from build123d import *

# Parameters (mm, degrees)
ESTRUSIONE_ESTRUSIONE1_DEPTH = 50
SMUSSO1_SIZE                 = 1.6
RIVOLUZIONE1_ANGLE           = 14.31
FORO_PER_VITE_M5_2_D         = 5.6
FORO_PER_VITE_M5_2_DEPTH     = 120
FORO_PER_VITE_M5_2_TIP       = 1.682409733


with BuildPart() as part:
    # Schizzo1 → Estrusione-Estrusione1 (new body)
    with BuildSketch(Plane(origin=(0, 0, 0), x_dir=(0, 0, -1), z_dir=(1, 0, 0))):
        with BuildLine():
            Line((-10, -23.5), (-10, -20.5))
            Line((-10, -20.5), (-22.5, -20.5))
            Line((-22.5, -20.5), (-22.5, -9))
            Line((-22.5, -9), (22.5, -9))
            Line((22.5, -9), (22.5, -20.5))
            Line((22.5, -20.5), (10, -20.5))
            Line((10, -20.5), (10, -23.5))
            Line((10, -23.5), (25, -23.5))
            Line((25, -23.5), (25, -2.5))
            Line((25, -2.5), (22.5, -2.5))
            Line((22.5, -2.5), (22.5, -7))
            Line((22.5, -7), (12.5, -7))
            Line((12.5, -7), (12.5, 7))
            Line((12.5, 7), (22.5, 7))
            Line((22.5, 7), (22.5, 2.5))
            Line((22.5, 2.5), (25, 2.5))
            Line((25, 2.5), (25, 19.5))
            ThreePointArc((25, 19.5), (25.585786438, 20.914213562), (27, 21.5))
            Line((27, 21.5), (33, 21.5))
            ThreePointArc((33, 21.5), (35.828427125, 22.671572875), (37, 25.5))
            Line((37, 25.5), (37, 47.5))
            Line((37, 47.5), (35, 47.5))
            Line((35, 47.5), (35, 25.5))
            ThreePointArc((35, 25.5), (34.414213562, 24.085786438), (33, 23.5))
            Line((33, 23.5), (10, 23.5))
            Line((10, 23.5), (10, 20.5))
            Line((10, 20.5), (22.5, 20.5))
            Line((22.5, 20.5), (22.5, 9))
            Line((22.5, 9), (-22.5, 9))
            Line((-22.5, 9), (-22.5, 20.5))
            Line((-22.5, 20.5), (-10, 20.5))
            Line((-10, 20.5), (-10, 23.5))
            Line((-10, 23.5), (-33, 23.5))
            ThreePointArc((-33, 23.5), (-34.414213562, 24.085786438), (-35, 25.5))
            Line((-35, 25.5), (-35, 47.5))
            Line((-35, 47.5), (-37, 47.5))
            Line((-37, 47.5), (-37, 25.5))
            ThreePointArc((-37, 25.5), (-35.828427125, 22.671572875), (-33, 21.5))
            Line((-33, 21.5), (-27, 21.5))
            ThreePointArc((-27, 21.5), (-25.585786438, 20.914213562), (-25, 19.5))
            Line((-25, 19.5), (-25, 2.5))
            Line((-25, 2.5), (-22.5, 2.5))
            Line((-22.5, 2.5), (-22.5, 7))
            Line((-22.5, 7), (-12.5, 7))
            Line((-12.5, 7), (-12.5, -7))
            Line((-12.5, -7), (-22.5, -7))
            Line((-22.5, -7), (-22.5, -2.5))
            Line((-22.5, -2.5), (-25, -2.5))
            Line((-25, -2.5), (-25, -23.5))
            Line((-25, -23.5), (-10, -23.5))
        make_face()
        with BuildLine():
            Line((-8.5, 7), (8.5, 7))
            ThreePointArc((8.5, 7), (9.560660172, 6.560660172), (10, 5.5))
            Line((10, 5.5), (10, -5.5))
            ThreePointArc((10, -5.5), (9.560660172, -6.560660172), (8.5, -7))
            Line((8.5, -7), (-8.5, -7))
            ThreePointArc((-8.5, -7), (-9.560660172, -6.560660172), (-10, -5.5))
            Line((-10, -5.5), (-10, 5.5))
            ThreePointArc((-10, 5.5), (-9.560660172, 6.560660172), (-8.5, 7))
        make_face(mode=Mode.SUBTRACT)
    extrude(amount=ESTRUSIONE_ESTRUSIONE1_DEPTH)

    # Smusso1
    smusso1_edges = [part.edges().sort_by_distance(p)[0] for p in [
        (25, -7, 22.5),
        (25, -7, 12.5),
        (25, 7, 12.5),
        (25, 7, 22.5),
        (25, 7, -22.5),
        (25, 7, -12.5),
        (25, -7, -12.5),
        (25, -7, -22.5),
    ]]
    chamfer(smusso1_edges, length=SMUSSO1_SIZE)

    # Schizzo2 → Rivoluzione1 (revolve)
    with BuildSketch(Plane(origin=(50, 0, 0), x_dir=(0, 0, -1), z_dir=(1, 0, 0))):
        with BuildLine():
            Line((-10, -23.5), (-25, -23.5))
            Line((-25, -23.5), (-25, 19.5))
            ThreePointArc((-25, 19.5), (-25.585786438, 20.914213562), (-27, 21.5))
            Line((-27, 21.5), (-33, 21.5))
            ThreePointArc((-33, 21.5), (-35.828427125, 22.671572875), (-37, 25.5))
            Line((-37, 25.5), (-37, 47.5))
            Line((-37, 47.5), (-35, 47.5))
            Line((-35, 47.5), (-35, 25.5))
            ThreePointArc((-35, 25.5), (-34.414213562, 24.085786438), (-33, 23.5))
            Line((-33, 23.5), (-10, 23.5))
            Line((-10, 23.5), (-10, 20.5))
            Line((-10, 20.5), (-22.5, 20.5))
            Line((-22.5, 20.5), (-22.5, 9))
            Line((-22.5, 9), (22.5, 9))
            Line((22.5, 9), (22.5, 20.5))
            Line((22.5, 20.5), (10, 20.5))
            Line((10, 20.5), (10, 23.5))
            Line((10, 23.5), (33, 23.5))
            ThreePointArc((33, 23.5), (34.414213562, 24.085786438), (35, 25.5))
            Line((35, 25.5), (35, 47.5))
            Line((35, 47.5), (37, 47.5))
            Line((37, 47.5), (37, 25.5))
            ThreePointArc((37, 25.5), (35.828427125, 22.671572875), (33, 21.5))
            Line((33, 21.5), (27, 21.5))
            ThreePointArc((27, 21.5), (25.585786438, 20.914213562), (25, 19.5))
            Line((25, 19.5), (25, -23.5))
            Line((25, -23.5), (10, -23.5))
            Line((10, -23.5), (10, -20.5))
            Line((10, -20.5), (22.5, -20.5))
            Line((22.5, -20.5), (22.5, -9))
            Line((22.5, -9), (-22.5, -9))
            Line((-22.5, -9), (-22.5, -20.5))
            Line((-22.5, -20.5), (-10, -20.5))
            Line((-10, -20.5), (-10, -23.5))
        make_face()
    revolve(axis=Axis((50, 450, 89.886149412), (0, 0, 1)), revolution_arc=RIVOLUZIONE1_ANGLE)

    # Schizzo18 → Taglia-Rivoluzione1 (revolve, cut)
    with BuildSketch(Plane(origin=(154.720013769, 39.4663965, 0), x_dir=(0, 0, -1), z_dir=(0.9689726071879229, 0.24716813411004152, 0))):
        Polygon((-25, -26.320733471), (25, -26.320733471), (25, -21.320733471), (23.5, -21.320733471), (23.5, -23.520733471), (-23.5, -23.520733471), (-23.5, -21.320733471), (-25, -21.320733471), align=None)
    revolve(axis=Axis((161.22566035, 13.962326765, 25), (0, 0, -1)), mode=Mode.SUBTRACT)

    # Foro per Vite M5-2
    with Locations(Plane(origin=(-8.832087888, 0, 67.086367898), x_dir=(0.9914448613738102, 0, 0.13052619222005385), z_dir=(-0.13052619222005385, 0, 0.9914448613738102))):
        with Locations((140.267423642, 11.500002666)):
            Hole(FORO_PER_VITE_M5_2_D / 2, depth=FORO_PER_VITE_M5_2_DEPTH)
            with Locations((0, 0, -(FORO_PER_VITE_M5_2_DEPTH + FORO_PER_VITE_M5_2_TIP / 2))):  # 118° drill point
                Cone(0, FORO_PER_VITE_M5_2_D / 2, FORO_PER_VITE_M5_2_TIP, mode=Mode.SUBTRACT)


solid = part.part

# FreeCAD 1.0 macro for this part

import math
import FreeCAD as App
import Part
import Sketcher

V = App.Vector
Q = App.Units.Quantity


def edges_at(feature, points):
    """Names of the edges that pass closest to the given points."""
    edges = feature.Shape.Edges
    near = lambda p: min(range(len(edges)), key=lambda i: edges[i].distToShape(Part.Vertex(*p))[0])
    return sorted({f"Edge{near(p) + 1}" for p in points})


def add_polygon(sketch, points):
    """Adds a closed chain of lines whose ends are joined by coincident constraints."""
    first, n = sketch.GeometryCount, len(points)
    for a, b in zip(points, points[1:] + points[:1]):
        sketch.addGeometry(Part.LineSegment(App.Vector(*a, 0), App.Vector(*b, 0)), False)
    for i in range(n):
        sketch.addConstraint(Sketcher.Constraint("Coincident", first + i, 2, first + (i + 1) % n, 1))

doc = App.newDocument("Part")
body = doc.addObject("PartDesign::Body", "Body")

sketch1 = body.newObject("Sketcher::SketchObject", "Sketch")
sketch1.AttachmentSupport = (doc.getObject("YZ_Plane"), [""])
sketch1.MapMode = "FlatFace"
sketch1.addGeometry([
    Part.LineSegment(V(-23.5, 10, 0), V(-20.5, 10, 0)),
    Part.LineSegment(V(-20.5, 10, 0), V(-20.5, 22.5, 0)),
    Part.LineSegment(V(-20.5, 22.5, 0), V(-9, 22.5, 0)),
    Part.LineSegment(V(-9, 22.5, 0), V(-9, -22.5, 0)),
    Part.LineSegment(V(-9, -22.5, 0), V(-20.5, -22.5, 0)),
    Part.LineSegment(V(-20.5, -22.5, 0), V(-20.5, -10, 0)),
    Part.LineSegment(V(-20.5, -10, 0), V(-23.5, -10, 0)),
    Part.LineSegment(V(-23.5, -10, 0), V(-23.5, -25, 0)),
    Part.LineSegment(V(-23.5, -25, 0), V(-2.5, -25, 0)),
    Part.LineSegment(V(-2.5, -25, 0), V(-2.5, -22.5, 0)),
    Part.LineSegment(V(-2.5, -22.5, 0), V(-7, -22.5, 0)),
    Part.LineSegment(V(-7, -22.5, 0), V(-7, -12.5, 0)),
    Part.LineSegment(V(-7, -12.5, 0), V(7, -12.5, 0)),
    Part.LineSegment(V(7, -12.5, 0), V(7, -22.5, 0)),
    Part.LineSegment(V(7, -22.5, 0), V(2.5, -22.5, 0)),
    Part.LineSegment(V(2.5, -22.5, 0), V(2.5, -25, 0)),
    Part.LineSegment(V(2.5, -25, 0), V(19.5, -25, 0)),
    Part.ArcOfCircle(Part.Circle(V(19.5, -27, 0), V(0, 0, 1), 2), math.radians(0), math.radians(90)),
    Part.LineSegment(V(21.5, -27, 0), V(21.5, -33, 0)),
    Part.ArcOfCircle(Part.Circle(V(25.5, -33, 0), V(0, 0, 1), 4), math.radians(180), math.radians(270)),
    Part.LineSegment(V(25.5, -37, 0), V(47.5, -37, 0)),
    Part.LineSegment(V(47.5, -37, 0), V(47.5, -35, 0)),
    Part.LineSegment(V(47.5, -35, 0), V(25.5, -35, 0)),
    Part.ArcOfCircle(Part.Circle(V(25.5, -33, 0), V(0, 0, 1), 2), math.radians(-180), math.radians(-90)),
    Part.LineSegment(V(23.5, -33, 0), V(23.5, -10, 0)),
    Part.LineSegment(V(23.5, -10, 0), V(20.5, -10, 0)),
    Part.LineSegment(V(20.5, -10, 0), V(20.5, -22.5, 0)),
    Part.LineSegment(V(20.5, -22.5, 0), V(9, -22.5, 0)),
    Part.LineSegment(V(9, -22.5, 0), V(9, 22.5, 0)),
    Part.LineSegment(V(9, 22.5, 0), V(20.5, 22.5, 0)),
    Part.LineSegment(V(20.5, 22.5, 0), V(20.5, 10, 0)),
    Part.LineSegment(V(20.5, 10, 0), V(23.5, 10, 0)),
    Part.LineSegment(V(23.5, 10, 0), V(23.5, 33, 0)),
    Part.ArcOfCircle(Part.Circle(V(25.5, 33, 0), V(0, 0, 1), 2), math.radians(90), math.radians(180)),
    Part.LineSegment(V(25.5, 35, 0), V(47.5, 35, 0)),
    Part.LineSegment(V(47.5, 35, 0), V(47.5, 37, 0)),
    Part.LineSegment(V(47.5, 37, 0), V(25.5, 37, 0)),
    Part.ArcOfCircle(Part.Circle(V(25.5, 33, 0), V(0, 0, 1), 4), math.radians(90), math.radians(180)),
    Part.LineSegment(V(21.5, 33, 0), V(21.5, 27, 0)),
    Part.ArcOfCircle(Part.Circle(V(19.5, 27, 0), V(0, 0, 1), 2), math.radians(-90), math.radians(0)),
    Part.LineSegment(V(19.5, 25, 0), V(2.5, 25, 0)),
    Part.LineSegment(V(2.5, 25, 0), V(2.5, 22.5, 0)),
    Part.LineSegment(V(2.5, 22.5, 0), V(7, 22.5, 0)),
    Part.LineSegment(V(7, 22.5, 0), V(7, 12.5, 0)),
    Part.LineSegment(V(7, 12.5, 0), V(-7, 12.5, 0)),
    Part.LineSegment(V(-7, 12.5, 0), V(-7, 22.5, 0)),
    Part.LineSegment(V(-7, 22.5, 0), V(-2.5, 22.5, 0)),
    Part.LineSegment(V(-2.5, 22.5, 0), V(-2.5, 25, 0)),
    Part.LineSegment(V(-2.5, 25, 0), V(-23.5, 25, 0)),
    Part.LineSegment(V(-23.5, 25, 0), V(-23.5, 10, 0)),
    Part.ArcOfCircle(Part.Circle(V(5.5, 8.5, 0), V(0, 0, 1), 1.5), math.radians(0), math.radians(90)),
    Part.LineSegment(V(7, 8.5, 0), V(7, -8.5, 0)),
    Part.ArcOfCircle(Part.Circle(V(5.5, -8.5, 0), V(0, 0, 1), 1.5), math.radians(-90), math.radians(0)),
    Part.LineSegment(V(5.5, -10, 0), V(-5.5, -10, 0)),
    Part.ArcOfCircle(Part.Circle(V(-5.5, -8.5, 0), V(0, 0, 1), 1.5), math.radians(180), math.radians(270)),
    Part.LineSegment(V(-7, -8.5, 0), V(-7, 8.5, 0)),
    Part.ArcOfCircle(Part.Circle(V(-5.5, 8.5, 0), V(0, 0, 1), 1.5), math.radians(90), math.radians(180)),
    Part.LineSegment(V(-5.5, 10, 0), V(5.5, 10, 0)),
], False)
sketch1.addConstraint([
    Sketcher.Constraint("Coincident", 0, 2, 1, 1),
    Sketcher.Constraint("Coincident", 1, 2, 2, 1),
    Sketcher.Constraint("Coincident", 2, 2, 3, 1),
    Sketcher.Constraint("Coincident", 3, 2, 4, 1),
    Sketcher.Constraint("Coincident", 4, 2, 5, 1),
    Sketcher.Constraint("Coincident", 5, 2, 6, 1),
    Sketcher.Constraint("Coincident", 6, 2, 7, 1),
    Sketcher.Constraint("Coincident", 7, 2, 8, 1),
    Sketcher.Constraint("Coincident", 8, 2, 9, 1),
    Sketcher.Constraint("Coincident", 9, 2, 10, 1),
    Sketcher.Constraint("Coincident", 10, 2, 11, 1),
    Sketcher.Constraint("Coincident", 11, 2, 12, 1),
    Sketcher.Constraint("Coincident", 12, 2, 13, 1),
    Sketcher.Constraint("Coincident", 13, 2, 14, 1),
    Sketcher.Constraint("Coincident", 14, 2, 15, 1),
    Sketcher.Constraint("Coincident", 15, 2, 16, 1),
    Sketcher.Constraint("Tangent", 16, 2, 17, 2),
    Sketcher.Constraint("Tangent", 17, 1, 18, 1),
    Sketcher.Constraint("Tangent", 18, 2, 19, 1),
    Sketcher.Constraint("Tangent", 19, 2, 20, 1),
    Sketcher.Constraint("Coincident", 20, 2, 21, 1),
    Sketcher.Constraint("Coincident", 21, 2, 22, 1),
    Sketcher.Constraint("Tangent", 22, 2, 23, 2),
    Sketcher.Constraint("Tangent", 23, 1, 24, 1),
    Sketcher.Constraint("Coincident", 24, 2, 25, 1),
    Sketcher.Constraint("Coincident", 25, 2, 26, 1),
    Sketcher.Constraint("Coincident", 26, 2, 27, 1),
    Sketcher.Constraint("Coincident", 27, 2, 28, 1),
    Sketcher.Constraint("Coincident", 28, 2, 29, 1),
    Sketcher.Constraint("Coincident", 29, 2, 30, 1),
    Sketcher.Constraint("Coincident", 30, 2, 31, 1),
    Sketcher.Constraint("Coincident", 31, 2, 32, 1),
    Sketcher.Constraint("Tangent", 32, 2, 33, 2),
    Sketcher.Constraint("Tangent", 33, 1, 34, 1),
    Sketcher.Constraint("Coincident", 34, 2, 35, 1),
    Sketcher.Constraint("Coincident", 35, 2, 36, 1),
    Sketcher.Constraint("Tangent", 36, 2, 37, 1),
    Sketcher.Constraint("Tangent", 37, 2, 38, 1),
    Sketcher.Constraint("Tangent", 38, 2, 39, 2),
    Sketcher.Constraint("Tangent", 39, 1, 40, 1),
    Sketcher.Constraint("Coincident", 40, 2, 41, 1),
    Sketcher.Constraint("Coincident", 41, 2, 42, 1),
    Sketcher.Constraint("Coincident", 42, 2, 43, 1),
    Sketcher.Constraint("Coincident", 43, 2, 44, 1),
    Sketcher.Constraint("Coincident", 44, 2, 45, 1),
    Sketcher.Constraint("Coincident", 45, 2, 46, 1),
    Sketcher.Constraint("Coincident", 46, 2, 47, 1),
    Sketcher.Constraint("Coincident", 47, 2, 48, 1),
    Sketcher.Constraint("Coincident", 48, 2, 49, 1),
    Sketcher.Constraint("Coincident", 49, 2, 0, 1),
    Sketcher.Constraint("Tangent", 50, 1, 51, 1),
    Sketcher.Constraint("Tangent", 51, 2, 52, 2),
    Sketcher.Constraint("Tangent", 52, 1, 53, 1),
    Sketcher.Constraint("Tangent", 53, 2, 54, 2),
    Sketcher.Constraint("Tangent", 54, 1, 55, 1),
    Sketcher.Constraint("Tangent", 55, 2, 56, 2),
    Sketcher.Constraint("Tangent", 56, 1, 57, 1),
    Sketcher.Constraint("Tangent", 57, 2, 50, 2),
    Sketcher.Constraint("Horizontal", 0),
    Sketcher.Constraint("Vertical", 1),
    Sketcher.Constraint("Horizontal", 2),
    Sketcher.Constraint("Vertical", 3),
    Sketcher.Constraint("Horizontal", 4),
    Sketcher.Constraint("Vertical", 5),
    Sketcher.Constraint("Horizontal", 6),
    Sketcher.Constraint("Vertical", 7),
    Sketcher.Constraint("Horizontal", 8),
    Sketcher.Constraint("Vertical", 9),
    Sketcher.Constraint("Horizontal", 10),
    Sketcher.Constraint("Vertical", 11),
    Sketcher.Constraint("Horizontal", 12),
    Sketcher.Constraint("Vertical", 13),
    Sketcher.Constraint("Horizontal", 14),
    Sketcher.Constraint("Vertical", 15),
    Sketcher.Constraint("Horizontal", 16),
    Sketcher.Constraint("Vertical", 18),
    Sketcher.Constraint("Horizontal", 20),
    Sketcher.Constraint("Vertical", 21),
    Sketcher.Constraint("Horizontal", 22),
    Sketcher.Constraint("Vertical", 24),
    Sketcher.Constraint("Horizontal", 25),
    Sketcher.Constraint("Vertical", 26),
    Sketcher.Constraint("Horizontal", 27),
    Sketcher.Constraint("Vertical", 28),
    Sketcher.Constraint("Horizontal", 29),
    Sketcher.Constraint("Vertical", 30),
    Sketcher.Constraint("Horizontal", 31),
    Sketcher.Constraint("Vertical", 32),
    Sketcher.Constraint("Horizontal", 34),
    Sketcher.Constraint("Vertical", 35),
    Sketcher.Constraint("Horizontal", 36),
    Sketcher.Constraint("Vertical", 38),
    Sketcher.Constraint("Horizontal", 40),
    Sketcher.Constraint("Vertical", 41),
    Sketcher.Constraint("Horizontal", 42),
    Sketcher.Constraint("Vertical", 43),
    Sketcher.Constraint("Horizontal", 44),
    Sketcher.Constraint("Vertical", 45),
    Sketcher.Constraint("Horizontal", 46),
    Sketcher.Constraint("Vertical", 47),
    Sketcher.Constraint("Horizontal", 48),
    Sketcher.Constraint("Vertical", 49),
    Sketcher.Constraint("Vertical", 51),
    Sketcher.Constraint("Horizontal", 53),
    Sketcher.Constraint("Vertical", 55),
    Sketcher.Constraint("Horizontal", 57),
    Sketcher.Constraint("Coincident", 23, 3, 19, 3),
    Sketcher.Constraint("Coincident", 37, 3, 33, 3),
    Sketcher.Constraint("Equal", 17, 23),
    Sketcher.Constraint("Equal", 23, 33),
    Sketcher.Constraint("Equal", 19, 37),
    Sketcher.Constraint("Equal", 33, 39),
    Sketcher.Constraint("Equal", 50, 52),
    Sketcher.Constraint("Equal", 52, 54),
    Sketcher.Constraint("Equal", 54, 56),
    Sketcher.Constraint("Symmetric", 50, 3, 54, 3, -1, 1),
    Sketcher.Constraint("Symmetric", 0, 2, 25, 2, -1, 1),
    Sketcher.Constraint("Symmetric", 2, 2, 27, 2, -1, 1),
    Sketcher.Constraint("Symmetric", 4, 2, 29, 2, -1, 1),
    Sketcher.Constraint("Symmetric", 6, 2, 31, 2, -1, 1),
    Sketcher.Constraint("Symmetric", 8, 2, 40, 2, -1, 1),
    Sketcher.Constraint("Symmetric", 10, 2, 42, 2, -1, 1),
    Sketcher.Constraint("Symmetric", 12, 2, 44, 2, -1, 1),
    Sketcher.Constraint("Symmetric", 14, 2, 46, 2, -1, 1),
    Sketcher.Constraint("Symmetric", 10, 2, 13, 2, -2),
    Sketcher.Constraint("Symmetric", 8, 2, 15, 2, -2),
    Sketcher.Constraint("Symmetric", 6, 2, 24, 2, -2),
    Sketcher.Constraint("Symmetric", 4, 2, 26, 2, -2),
    Sketcher.Constraint("Symmetric", 21, 2, 34, 2, -1),
    Sketcher.Constraint("Symmetric", 7, 2, 48, 2, -1),
    Sketcher.Constraint("Horizontal", 4, 2, 9, 2),
    Sketcher.Constraint("Horizontal", 25, 2, 52, 1),
    Sketcher.Constraint("Vertical", 43, 2, 50, 1),
    Sketcher.Constraint("Equal", 40, 51),
    Sketcher.Constraint("Radius", 17, Q("2 mm")),
    Sketcher.Constraint("Radius", 19, Q("4 mm")),
    Sketcher.Constraint("Radius", 50, Q("1.5 mm")),
    Sketcher.Constraint("DistanceX", 0, 1, 0, 2, Q("3 mm")),
    Sketcher.Constraint("DistanceX", 8, 1, 8, 2, Q("21 mm")),
    Sketcher.Constraint("DistanceX", 12, 1, 12, 2, Q("14 mm")),
    Sketcher.Constraint("DistanceX", 20, 1, 20, 2, Q("22 mm")),
    Sketcher.Constraint("DistanceY", 3, 2, 3, 1, Q("45 mm")),
    Sketcher.Constraint("DistanceY", 7, 2, 7, 1, Q("15 mm")),
    Sketcher.Constraint("DistanceY", 11, 1, 11, 2, Q("10 mm")),
    Sketcher.Constraint("DistanceY", 18, 2, 18, 1, Q("6 mm")),
    Sketcher.Constraint("DistanceX", 2, 1, 2, 2, Q("11.5 mm")),
    Sketcher.Constraint("DistanceX", 10, 2, 10, 1, Q("4.5 mm")),
])
pad1 = body.newObject("PartDesign::Pad", "Pad")
pad1.Profile = sketch1
pad1.Length = 50
doc.recompute()

chamfer = body.newObject("PartDesign::Chamfer", "Chamfer")
chamfer.Base = (pad1, edges_at(pad1, [
    (25, -7, 22.5),
    (25, -7, 12.5),
    (25, 7, 12.5),
    (25, 7, 22.5),
    (25, 7, -22.5),
    (25, 7, -12.5),
    (25, -7, -12.5),
    (25, -7, -22.5),
]))
chamfer.Size = 1.6

sketch2 = body.newObject("Sketcher::SketchObject", "Sketch001")
sketch2.AttachmentSupport = (doc.getObject("YZ_Plane"), [""])
sketch2.MapMode = "FlatFace"
sketch2.AttachmentOffset = App.Placement(V(0, 0, 50), App.Rotation())
sketch2.addGeometry([
    Part.LineSegment(V(-23.5, 25, 0), V(-23.5, 10, 0)),
    Part.LineSegment(V(-23.5, 10, 0), V(-20.5, 10, 0)),
    Part.LineSegment(V(-20.5, 10, 0), V(-20.5, 22.5, 0)),
    Part.LineSegment(V(-20.5, 22.5, 0), V(-9, 22.5, 0)),
    Part.LineSegment(V(-9, 22.5, 0), V(-9, -22.5, 0)),
    Part.LineSegment(V(-9, -22.5, 0), V(-20.5, -22.5, 0)),
    Part.LineSegment(V(-20.5, -22.5, 0), V(-20.5, -10, 0)),
    Part.LineSegment(V(-20.5, -10, 0), V(-23.5, -10, 0)),
    Part.LineSegment(V(-23.5, -10, 0), V(-23.5, -25, 0)),
    Part.LineSegment(V(-23.5, -25, 0), V(19.5, -25, 0)),
    Part.ArcOfCircle(Part.Circle(V(19.5, -27, 0), V(0, 0, 1), 2), math.radians(0), math.radians(90)),
    Part.LineSegment(V(21.5, -27, 0), V(21.5, -33, 0)),
    Part.ArcOfCircle(Part.Circle(V(25.5, -33, 0), V(0, 0, 1), 4), math.radians(180), math.radians(270)),
    Part.LineSegment(V(25.5, -37, 0), V(47.5, -37, 0)),
    Part.LineSegment(V(47.5, -37, 0), V(47.5, -35, 0)),
    Part.LineSegment(V(47.5, -35, 0), V(25.5, -35, 0)),
    Part.ArcOfCircle(Part.Circle(V(25.5, -33, 0), V(0, 0, 1), 2), math.radians(-180), math.radians(-90)),
    Part.LineSegment(V(23.5, -33, 0), V(23.5, -10, 0)),
    Part.LineSegment(V(23.5, -10, 0), V(20.5, -10, 0)),
    Part.LineSegment(V(20.5, -10, 0), V(20.5, -22.5, 0)),
    Part.LineSegment(V(20.5, -22.5, 0), V(9, -22.5, 0)),
    Part.LineSegment(V(9, -22.5, 0), V(9, 22.5, 0)),
    Part.LineSegment(V(9, 22.5, 0), V(20.5, 22.5, 0)),
    Part.LineSegment(V(20.5, 22.5, 0), V(20.5, 10, 0)),
    Part.LineSegment(V(20.5, 10, 0), V(23.5, 10, 0)),
    Part.LineSegment(V(23.5, 10, 0), V(23.5, 33, 0)),
    Part.ArcOfCircle(Part.Circle(V(25.5, 33, 0), V(0, 0, 1), 2), math.radians(90), math.radians(180)),
    Part.LineSegment(V(25.5, 35, 0), V(47.5, 35, 0)),
    Part.LineSegment(V(47.5, 35, 0), V(47.5, 37, 0)),
    Part.LineSegment(V(47.5, 37, 0), V(25.5, 37, 0)),
    Part.ArcOfCircle(Part.Circle(V(25.5, 33, 0), V(0, 0, 1), 4), math.radians(90), math.radians(180)),
    Part.LineSegment(V(21.5, 33, 0), V(21.5, 27, 0)),
    Part.ArcOfCircle(Part.Circle(V(19.5, 27, 0), V(0, 0, 1), 2), math.radians(-90), math.radians(0)),
    Part.LineSegment(V(19.5, 25, 0), V(-23.5, 25, 0)),
], False)
sketch2.addGeometry(Part.LineSegment(V(450, -37, 0), V(450, 37, 0)), True)
sketch2.addConstraint([
    Sketcher.Constraint("Coincident", 0, 2, 1, 1),
    Sketcher.Constraint("Coincident", 1, 2, 2, 1),
    Sketcher.Constraint("Coincident", 2, 2, 3, 1),
    Sketcher.Constraint("Coincident", 3, 2, 4, 1),
    Sketcher.Constraint("Coincident", 4, 2, 5, 1),
    Sketcher.Constraint("Coincident", 5, 2, 6, 1),
    Sketcher.Constraint("Coincident", 6, 2, 7, 1),
    Sketcher.Constraint("Coincident", 7, 2, 8, 1),
    Sketcher.Constraint("Coincident", 8, 2, 9, 1),
    Sketcher.Constraint("Tangent", 9, 2, 10, 2),
    Sketcher.Constraint("Tangent", 10, 1, 11, 1),
    Sketcher.Constraint("Tangent", 11, 2, 12, 1),
    Sketcher.Constraint("Tangent", 12, 2, 13, 1),
    Sketcher.Constraint("Coincident", 13, 2, 14, 1),
    Sketcher.Constraint("Coincident", 14, 2, 15, 1),
    Sketcher.Constraint("Tangent", 15, 2, 16, 2),
    Sketcher.Constraint("Tangent", 16, 1, 17, 1),
    Sketcher.Constraint("Coincident", 17, 2, 18, 1),
    Sketcher.Constraint("Coincident", 18, 2, 19, 1),
    Sketcher.Constraint("Coincident", 19, 2, 20, 1),
    Sketcher.Constraint("Coincident", 20, 2, 21, 1),
    Sketcher.Constraint("Coincident", 21, 2, 22, 1),
    Sketcher.Constraint("Coincident", 22, 2, 23, 1),
    Sketcher.Constraint("Coincident", 23, 2, 24, 1),
    Sketcher.Constraint("Coincident", 24, 2, 25, 1),
    Sketcher.Constraint("Tangent", 25, 2, 26, 2),
    Sketcher.Constraint("Tangent", 26, 1, 27, 1),
    Sketcher.Constraint("Coincident", 27, 2, 28, 1),
    Sketcher.Constraint("Coincident", 28, 2, 29, 1),
    Sketcher.Constraint("Tangent", 29, 2, 30, 1),
    Sketcher.Constraint("Tangent", 30, 2, 31, 1),
    Sketcher.Constraint("Tangent", 31, 2, 32, 2),
    Sketcher.Constraint("Tangent", 32, 1, 33, 1),
    Sketcher.Constraint("Coincident", 33, 2, 0, 1),
    Sketcher.Constraint("Vertical", 0),
    Sketcher.Constraint("Horizontal", 1),
    Sketcher.Constraint("Vertical", 2),
    Sketcher.Constraint("Horizontal", 3),
    Sketcher.Constraint("Vertical", 4),
    Sketcher.Constraint("Horizontal", 5),
    Sketcher.Constraint("Vertical", 6),
    Sketcher.Constraint("Horizontal", 7),
    Sketcher.Constraint("Vertical", 8),
    Sketcher.Constraint("Horizontal", 9),
    Sketcher.Constraint("Vertical", 11),
    Sketcher.Constraint("Horizontal", 13),
    Sketcher.Constraint("Vertical", 14),
    Sketcher.Constraint("Horizontal", 15),
    Sketcher.Constraint("Vertical", 17),
    Sketcher.Constraint("Horizontal", 18),
    Sketcher.Constraint("Vertical", 19),
    Sketcher.Constraint("Horizontal", 20),
    Sketcher.Constraint("Vertical", 21),
    Sketcher.Constraint("Horizontal", 22),
    Sketcher.Constraint("Vertical", 23),
    Sketcher.Constraint("Horizontal", 24),
    Sketcher.Constraint("Vertical", 25),
    Sketcher.Constraint("Horizontal", 27),
    Sketcher.Constraint("Vertical", 28),
    Sketcher.Constraint("Horizontal", 29),
    Sketcher.Constraint("Vertical", 31),
    Sketcher.Constraint("Horizontal", 33),
    Sketcher.Constraint("Vertical", 34),
    Sketcher.Constraint("Coincident", 16, 3, 12, 3),
    Sketcher.Constraint("Coincident", 30, 3, 26, 3),
    Sketcher.Constraint("Equal", 10, 16),
    Sketcher.Constraint("Equal", 16, 26),
    Sketcher.Constraint("Equal", 12, 30),
    Sketcher.Constraint("Equal", 26, 32),
    Sketcher.Constraint("Symmetric", 0, 2, 17, 2, -1, 1),
    Sketcher.Constraint("Symmetric", 2, 2, 19, 2, -1, 1),
    Sketcher.Constraint("Symmetric", 4, 2, 21, 2, -1, 1),
    Sketcher.Constraint("Symmetric", 6, 2, 23, 2, -1, 1),
    Sketcher.Constraint("Symmetric", 7, 2, 17, 2, -2),
    Sketcher.Constraint("Symmetric", 5, 2, 19, 2, -2),
    Sketcher.Constraint("Symmetric", 12, 3, 26, 3, -1),
    Sketcher.Constraint("Horizontal", 13, 2, 34, 1),
    Sketcher.Constraint("Horizontal", 29, 2, 34, 2),
    Sketcher.Constraint("Vertical", 14, 2, 27, 2),
    Sketcher.Constraint("Equal", 0, 8),
    Sketcher.Constraint("Radius", 10, Q("2 mm")),
    Sketcher.Constraint("Radius", 12, Q("4 mm")),
    Sketcher.Constraint("DistanceX", 1, 1, 1, 2, Q("3 mm")),
    Sketcher.Constraint("DistanceX", 9, 1, 9, 2, Q("43 mm")),
    Sketcher.Constraint("DistanceX", 13, 1, 13, 2, Q("22 mm")),
    Sketcher.Constraint("DistanceY", 0, 2, 0, 1, Q("15 mm")),
    Sketcher.Constraint("DistanceY", 4, 2, 4, 1, Q("45 mm")),
    Sketcher.Constraint("DistanceY", 11, 2, 11, 1, Q("6 mm")),
    Sketcher.Constraint("DistanceY", 34, 1, 34, 2, Q("74 mm")),
    Sketcher.Constraint("DistanceX", 3, 1, 3, 2, Q("11.5 mm")),
    Sketcher.Constraint("DistanceX", -1, 1, 34, 1, Q("450 mm")),
])
revolution = body.newObject("PartDesign::Revolution", "Revolution")
revolution.Profile = sketch2
revolution.ReferenceAxis = (sketch2, ["Axis0"])
revolution.Angle = 14.31

sketch3 = body.newObject("Sketcher::SketchObject", "Sketch002")
sketch3.Placement = App.Placement(V(154.720014, 39.466397, 0), App.Rotation(V(0, 0, -1), V(-0.247168134, 0.968972607, 0), V(0.968972607, 0.247168134, 0), "ZXY"))
add_polygon(sketch3, [(-25, -26.320733), (25, -26.320733), (25, -21.320733), (23.5, -21.320733), (23.5, -23.520733), (-23.5, -23.520733), (-23.5, -21.320733), (-25, -21.320733)])
sketch3.addGeometry(Part.LineSegment(V(-25, -26.320733, 0), V(25, -26.320733, 0)), True)
sketch3.addConstraint([
    Sketcher.Constraint("Horizontal", 0),
    Sketcher.Constraint("Vertical", 1),
    Sketcher.Constraint("Horizontal", 2),
    Sketcher.Constraint("Vertical", 3),
    Sketcher.Constraint("Horizontal", 4),
    Sketcher.Constraint("Vertical", 5),
    Sketcher.Constraint("Horizontal", 6),
    Sketcher.Constraint("Vertical", 7),
    Sketcher.Constraint("Horizontal", 8),
    Sketcher.Constraint("Coincident", 8, 1, 7, 2),
    Sketcher.Constraint("Symmetric", 2, 2, 5, 2, -2),
    Sketcher.Constraint("Vertical", 1, 2, 8, 2),
    Sketcher.Constraint("Equal", 2, 6),
    Sketcher.Constraint("DistanceX", 0, 1, 0, 2, Q("50 mm")),
    Sketcher.Constraint("DistanceX", 4, 2, 4, 1, Q("47 mm")),
    Sketcher.Constraint("DistanceY", 1, 1, 1, 2, Q("5 mm")),
    Sketcher.Constraint("DistanceY", 3, 2, 3, 1, Q("2.2 mm")),
    Sketcher.Constraint("DistanceY", 0, 2, -1, 1, Q("26.320733 mm")),
])
groove = body.newObject("PartDesign::Groove", "Groove")
groove.Profile = sketch3
groove.ReferenceAxis = (sketch3, ["Axis0"])
groove.Angle = 360

sketch4 = body.newObject("Sketcher::SketchObject", "Sketch003")
sketch4.Placement = App.Placement(V(-8.832088, 0, 67.086368), App.Rotation(V(0.991444861, 0, 0.130526192), V(0, 0.999999999, 0), V(-0.130526192, 0, 0.991444861), "ZXY"))
sketch4.addGeometry(Part.Circle(V(140.267424, 11.500003, 0), V(0, 0, 1), 2.8), False)
sketch4.addConstraint([
    Sketcher.Constraint("Diameter", 0, Q("5.6 mm")),
    Sketcher.Constraint("DistanceX", -1, 1, 0, 3, Q("140.267424 mm")),
    Sketcher.Constraint("DistanceY", -1, 1, 0, 3, Q("11.500003 mm")),
])
doc.recompute()
hole = body.newObject("PartDesign::Hole", "Hole")
hole.Profile = sketch4
hole.ThreadType = "None"
hole.Diameter = 5.6
hole.DepthType = "Dimension"
hole.Depth = 120
hole.DrillPoint = "Angled"
hole.DrillPointAngle = 118

doc.recompute()
